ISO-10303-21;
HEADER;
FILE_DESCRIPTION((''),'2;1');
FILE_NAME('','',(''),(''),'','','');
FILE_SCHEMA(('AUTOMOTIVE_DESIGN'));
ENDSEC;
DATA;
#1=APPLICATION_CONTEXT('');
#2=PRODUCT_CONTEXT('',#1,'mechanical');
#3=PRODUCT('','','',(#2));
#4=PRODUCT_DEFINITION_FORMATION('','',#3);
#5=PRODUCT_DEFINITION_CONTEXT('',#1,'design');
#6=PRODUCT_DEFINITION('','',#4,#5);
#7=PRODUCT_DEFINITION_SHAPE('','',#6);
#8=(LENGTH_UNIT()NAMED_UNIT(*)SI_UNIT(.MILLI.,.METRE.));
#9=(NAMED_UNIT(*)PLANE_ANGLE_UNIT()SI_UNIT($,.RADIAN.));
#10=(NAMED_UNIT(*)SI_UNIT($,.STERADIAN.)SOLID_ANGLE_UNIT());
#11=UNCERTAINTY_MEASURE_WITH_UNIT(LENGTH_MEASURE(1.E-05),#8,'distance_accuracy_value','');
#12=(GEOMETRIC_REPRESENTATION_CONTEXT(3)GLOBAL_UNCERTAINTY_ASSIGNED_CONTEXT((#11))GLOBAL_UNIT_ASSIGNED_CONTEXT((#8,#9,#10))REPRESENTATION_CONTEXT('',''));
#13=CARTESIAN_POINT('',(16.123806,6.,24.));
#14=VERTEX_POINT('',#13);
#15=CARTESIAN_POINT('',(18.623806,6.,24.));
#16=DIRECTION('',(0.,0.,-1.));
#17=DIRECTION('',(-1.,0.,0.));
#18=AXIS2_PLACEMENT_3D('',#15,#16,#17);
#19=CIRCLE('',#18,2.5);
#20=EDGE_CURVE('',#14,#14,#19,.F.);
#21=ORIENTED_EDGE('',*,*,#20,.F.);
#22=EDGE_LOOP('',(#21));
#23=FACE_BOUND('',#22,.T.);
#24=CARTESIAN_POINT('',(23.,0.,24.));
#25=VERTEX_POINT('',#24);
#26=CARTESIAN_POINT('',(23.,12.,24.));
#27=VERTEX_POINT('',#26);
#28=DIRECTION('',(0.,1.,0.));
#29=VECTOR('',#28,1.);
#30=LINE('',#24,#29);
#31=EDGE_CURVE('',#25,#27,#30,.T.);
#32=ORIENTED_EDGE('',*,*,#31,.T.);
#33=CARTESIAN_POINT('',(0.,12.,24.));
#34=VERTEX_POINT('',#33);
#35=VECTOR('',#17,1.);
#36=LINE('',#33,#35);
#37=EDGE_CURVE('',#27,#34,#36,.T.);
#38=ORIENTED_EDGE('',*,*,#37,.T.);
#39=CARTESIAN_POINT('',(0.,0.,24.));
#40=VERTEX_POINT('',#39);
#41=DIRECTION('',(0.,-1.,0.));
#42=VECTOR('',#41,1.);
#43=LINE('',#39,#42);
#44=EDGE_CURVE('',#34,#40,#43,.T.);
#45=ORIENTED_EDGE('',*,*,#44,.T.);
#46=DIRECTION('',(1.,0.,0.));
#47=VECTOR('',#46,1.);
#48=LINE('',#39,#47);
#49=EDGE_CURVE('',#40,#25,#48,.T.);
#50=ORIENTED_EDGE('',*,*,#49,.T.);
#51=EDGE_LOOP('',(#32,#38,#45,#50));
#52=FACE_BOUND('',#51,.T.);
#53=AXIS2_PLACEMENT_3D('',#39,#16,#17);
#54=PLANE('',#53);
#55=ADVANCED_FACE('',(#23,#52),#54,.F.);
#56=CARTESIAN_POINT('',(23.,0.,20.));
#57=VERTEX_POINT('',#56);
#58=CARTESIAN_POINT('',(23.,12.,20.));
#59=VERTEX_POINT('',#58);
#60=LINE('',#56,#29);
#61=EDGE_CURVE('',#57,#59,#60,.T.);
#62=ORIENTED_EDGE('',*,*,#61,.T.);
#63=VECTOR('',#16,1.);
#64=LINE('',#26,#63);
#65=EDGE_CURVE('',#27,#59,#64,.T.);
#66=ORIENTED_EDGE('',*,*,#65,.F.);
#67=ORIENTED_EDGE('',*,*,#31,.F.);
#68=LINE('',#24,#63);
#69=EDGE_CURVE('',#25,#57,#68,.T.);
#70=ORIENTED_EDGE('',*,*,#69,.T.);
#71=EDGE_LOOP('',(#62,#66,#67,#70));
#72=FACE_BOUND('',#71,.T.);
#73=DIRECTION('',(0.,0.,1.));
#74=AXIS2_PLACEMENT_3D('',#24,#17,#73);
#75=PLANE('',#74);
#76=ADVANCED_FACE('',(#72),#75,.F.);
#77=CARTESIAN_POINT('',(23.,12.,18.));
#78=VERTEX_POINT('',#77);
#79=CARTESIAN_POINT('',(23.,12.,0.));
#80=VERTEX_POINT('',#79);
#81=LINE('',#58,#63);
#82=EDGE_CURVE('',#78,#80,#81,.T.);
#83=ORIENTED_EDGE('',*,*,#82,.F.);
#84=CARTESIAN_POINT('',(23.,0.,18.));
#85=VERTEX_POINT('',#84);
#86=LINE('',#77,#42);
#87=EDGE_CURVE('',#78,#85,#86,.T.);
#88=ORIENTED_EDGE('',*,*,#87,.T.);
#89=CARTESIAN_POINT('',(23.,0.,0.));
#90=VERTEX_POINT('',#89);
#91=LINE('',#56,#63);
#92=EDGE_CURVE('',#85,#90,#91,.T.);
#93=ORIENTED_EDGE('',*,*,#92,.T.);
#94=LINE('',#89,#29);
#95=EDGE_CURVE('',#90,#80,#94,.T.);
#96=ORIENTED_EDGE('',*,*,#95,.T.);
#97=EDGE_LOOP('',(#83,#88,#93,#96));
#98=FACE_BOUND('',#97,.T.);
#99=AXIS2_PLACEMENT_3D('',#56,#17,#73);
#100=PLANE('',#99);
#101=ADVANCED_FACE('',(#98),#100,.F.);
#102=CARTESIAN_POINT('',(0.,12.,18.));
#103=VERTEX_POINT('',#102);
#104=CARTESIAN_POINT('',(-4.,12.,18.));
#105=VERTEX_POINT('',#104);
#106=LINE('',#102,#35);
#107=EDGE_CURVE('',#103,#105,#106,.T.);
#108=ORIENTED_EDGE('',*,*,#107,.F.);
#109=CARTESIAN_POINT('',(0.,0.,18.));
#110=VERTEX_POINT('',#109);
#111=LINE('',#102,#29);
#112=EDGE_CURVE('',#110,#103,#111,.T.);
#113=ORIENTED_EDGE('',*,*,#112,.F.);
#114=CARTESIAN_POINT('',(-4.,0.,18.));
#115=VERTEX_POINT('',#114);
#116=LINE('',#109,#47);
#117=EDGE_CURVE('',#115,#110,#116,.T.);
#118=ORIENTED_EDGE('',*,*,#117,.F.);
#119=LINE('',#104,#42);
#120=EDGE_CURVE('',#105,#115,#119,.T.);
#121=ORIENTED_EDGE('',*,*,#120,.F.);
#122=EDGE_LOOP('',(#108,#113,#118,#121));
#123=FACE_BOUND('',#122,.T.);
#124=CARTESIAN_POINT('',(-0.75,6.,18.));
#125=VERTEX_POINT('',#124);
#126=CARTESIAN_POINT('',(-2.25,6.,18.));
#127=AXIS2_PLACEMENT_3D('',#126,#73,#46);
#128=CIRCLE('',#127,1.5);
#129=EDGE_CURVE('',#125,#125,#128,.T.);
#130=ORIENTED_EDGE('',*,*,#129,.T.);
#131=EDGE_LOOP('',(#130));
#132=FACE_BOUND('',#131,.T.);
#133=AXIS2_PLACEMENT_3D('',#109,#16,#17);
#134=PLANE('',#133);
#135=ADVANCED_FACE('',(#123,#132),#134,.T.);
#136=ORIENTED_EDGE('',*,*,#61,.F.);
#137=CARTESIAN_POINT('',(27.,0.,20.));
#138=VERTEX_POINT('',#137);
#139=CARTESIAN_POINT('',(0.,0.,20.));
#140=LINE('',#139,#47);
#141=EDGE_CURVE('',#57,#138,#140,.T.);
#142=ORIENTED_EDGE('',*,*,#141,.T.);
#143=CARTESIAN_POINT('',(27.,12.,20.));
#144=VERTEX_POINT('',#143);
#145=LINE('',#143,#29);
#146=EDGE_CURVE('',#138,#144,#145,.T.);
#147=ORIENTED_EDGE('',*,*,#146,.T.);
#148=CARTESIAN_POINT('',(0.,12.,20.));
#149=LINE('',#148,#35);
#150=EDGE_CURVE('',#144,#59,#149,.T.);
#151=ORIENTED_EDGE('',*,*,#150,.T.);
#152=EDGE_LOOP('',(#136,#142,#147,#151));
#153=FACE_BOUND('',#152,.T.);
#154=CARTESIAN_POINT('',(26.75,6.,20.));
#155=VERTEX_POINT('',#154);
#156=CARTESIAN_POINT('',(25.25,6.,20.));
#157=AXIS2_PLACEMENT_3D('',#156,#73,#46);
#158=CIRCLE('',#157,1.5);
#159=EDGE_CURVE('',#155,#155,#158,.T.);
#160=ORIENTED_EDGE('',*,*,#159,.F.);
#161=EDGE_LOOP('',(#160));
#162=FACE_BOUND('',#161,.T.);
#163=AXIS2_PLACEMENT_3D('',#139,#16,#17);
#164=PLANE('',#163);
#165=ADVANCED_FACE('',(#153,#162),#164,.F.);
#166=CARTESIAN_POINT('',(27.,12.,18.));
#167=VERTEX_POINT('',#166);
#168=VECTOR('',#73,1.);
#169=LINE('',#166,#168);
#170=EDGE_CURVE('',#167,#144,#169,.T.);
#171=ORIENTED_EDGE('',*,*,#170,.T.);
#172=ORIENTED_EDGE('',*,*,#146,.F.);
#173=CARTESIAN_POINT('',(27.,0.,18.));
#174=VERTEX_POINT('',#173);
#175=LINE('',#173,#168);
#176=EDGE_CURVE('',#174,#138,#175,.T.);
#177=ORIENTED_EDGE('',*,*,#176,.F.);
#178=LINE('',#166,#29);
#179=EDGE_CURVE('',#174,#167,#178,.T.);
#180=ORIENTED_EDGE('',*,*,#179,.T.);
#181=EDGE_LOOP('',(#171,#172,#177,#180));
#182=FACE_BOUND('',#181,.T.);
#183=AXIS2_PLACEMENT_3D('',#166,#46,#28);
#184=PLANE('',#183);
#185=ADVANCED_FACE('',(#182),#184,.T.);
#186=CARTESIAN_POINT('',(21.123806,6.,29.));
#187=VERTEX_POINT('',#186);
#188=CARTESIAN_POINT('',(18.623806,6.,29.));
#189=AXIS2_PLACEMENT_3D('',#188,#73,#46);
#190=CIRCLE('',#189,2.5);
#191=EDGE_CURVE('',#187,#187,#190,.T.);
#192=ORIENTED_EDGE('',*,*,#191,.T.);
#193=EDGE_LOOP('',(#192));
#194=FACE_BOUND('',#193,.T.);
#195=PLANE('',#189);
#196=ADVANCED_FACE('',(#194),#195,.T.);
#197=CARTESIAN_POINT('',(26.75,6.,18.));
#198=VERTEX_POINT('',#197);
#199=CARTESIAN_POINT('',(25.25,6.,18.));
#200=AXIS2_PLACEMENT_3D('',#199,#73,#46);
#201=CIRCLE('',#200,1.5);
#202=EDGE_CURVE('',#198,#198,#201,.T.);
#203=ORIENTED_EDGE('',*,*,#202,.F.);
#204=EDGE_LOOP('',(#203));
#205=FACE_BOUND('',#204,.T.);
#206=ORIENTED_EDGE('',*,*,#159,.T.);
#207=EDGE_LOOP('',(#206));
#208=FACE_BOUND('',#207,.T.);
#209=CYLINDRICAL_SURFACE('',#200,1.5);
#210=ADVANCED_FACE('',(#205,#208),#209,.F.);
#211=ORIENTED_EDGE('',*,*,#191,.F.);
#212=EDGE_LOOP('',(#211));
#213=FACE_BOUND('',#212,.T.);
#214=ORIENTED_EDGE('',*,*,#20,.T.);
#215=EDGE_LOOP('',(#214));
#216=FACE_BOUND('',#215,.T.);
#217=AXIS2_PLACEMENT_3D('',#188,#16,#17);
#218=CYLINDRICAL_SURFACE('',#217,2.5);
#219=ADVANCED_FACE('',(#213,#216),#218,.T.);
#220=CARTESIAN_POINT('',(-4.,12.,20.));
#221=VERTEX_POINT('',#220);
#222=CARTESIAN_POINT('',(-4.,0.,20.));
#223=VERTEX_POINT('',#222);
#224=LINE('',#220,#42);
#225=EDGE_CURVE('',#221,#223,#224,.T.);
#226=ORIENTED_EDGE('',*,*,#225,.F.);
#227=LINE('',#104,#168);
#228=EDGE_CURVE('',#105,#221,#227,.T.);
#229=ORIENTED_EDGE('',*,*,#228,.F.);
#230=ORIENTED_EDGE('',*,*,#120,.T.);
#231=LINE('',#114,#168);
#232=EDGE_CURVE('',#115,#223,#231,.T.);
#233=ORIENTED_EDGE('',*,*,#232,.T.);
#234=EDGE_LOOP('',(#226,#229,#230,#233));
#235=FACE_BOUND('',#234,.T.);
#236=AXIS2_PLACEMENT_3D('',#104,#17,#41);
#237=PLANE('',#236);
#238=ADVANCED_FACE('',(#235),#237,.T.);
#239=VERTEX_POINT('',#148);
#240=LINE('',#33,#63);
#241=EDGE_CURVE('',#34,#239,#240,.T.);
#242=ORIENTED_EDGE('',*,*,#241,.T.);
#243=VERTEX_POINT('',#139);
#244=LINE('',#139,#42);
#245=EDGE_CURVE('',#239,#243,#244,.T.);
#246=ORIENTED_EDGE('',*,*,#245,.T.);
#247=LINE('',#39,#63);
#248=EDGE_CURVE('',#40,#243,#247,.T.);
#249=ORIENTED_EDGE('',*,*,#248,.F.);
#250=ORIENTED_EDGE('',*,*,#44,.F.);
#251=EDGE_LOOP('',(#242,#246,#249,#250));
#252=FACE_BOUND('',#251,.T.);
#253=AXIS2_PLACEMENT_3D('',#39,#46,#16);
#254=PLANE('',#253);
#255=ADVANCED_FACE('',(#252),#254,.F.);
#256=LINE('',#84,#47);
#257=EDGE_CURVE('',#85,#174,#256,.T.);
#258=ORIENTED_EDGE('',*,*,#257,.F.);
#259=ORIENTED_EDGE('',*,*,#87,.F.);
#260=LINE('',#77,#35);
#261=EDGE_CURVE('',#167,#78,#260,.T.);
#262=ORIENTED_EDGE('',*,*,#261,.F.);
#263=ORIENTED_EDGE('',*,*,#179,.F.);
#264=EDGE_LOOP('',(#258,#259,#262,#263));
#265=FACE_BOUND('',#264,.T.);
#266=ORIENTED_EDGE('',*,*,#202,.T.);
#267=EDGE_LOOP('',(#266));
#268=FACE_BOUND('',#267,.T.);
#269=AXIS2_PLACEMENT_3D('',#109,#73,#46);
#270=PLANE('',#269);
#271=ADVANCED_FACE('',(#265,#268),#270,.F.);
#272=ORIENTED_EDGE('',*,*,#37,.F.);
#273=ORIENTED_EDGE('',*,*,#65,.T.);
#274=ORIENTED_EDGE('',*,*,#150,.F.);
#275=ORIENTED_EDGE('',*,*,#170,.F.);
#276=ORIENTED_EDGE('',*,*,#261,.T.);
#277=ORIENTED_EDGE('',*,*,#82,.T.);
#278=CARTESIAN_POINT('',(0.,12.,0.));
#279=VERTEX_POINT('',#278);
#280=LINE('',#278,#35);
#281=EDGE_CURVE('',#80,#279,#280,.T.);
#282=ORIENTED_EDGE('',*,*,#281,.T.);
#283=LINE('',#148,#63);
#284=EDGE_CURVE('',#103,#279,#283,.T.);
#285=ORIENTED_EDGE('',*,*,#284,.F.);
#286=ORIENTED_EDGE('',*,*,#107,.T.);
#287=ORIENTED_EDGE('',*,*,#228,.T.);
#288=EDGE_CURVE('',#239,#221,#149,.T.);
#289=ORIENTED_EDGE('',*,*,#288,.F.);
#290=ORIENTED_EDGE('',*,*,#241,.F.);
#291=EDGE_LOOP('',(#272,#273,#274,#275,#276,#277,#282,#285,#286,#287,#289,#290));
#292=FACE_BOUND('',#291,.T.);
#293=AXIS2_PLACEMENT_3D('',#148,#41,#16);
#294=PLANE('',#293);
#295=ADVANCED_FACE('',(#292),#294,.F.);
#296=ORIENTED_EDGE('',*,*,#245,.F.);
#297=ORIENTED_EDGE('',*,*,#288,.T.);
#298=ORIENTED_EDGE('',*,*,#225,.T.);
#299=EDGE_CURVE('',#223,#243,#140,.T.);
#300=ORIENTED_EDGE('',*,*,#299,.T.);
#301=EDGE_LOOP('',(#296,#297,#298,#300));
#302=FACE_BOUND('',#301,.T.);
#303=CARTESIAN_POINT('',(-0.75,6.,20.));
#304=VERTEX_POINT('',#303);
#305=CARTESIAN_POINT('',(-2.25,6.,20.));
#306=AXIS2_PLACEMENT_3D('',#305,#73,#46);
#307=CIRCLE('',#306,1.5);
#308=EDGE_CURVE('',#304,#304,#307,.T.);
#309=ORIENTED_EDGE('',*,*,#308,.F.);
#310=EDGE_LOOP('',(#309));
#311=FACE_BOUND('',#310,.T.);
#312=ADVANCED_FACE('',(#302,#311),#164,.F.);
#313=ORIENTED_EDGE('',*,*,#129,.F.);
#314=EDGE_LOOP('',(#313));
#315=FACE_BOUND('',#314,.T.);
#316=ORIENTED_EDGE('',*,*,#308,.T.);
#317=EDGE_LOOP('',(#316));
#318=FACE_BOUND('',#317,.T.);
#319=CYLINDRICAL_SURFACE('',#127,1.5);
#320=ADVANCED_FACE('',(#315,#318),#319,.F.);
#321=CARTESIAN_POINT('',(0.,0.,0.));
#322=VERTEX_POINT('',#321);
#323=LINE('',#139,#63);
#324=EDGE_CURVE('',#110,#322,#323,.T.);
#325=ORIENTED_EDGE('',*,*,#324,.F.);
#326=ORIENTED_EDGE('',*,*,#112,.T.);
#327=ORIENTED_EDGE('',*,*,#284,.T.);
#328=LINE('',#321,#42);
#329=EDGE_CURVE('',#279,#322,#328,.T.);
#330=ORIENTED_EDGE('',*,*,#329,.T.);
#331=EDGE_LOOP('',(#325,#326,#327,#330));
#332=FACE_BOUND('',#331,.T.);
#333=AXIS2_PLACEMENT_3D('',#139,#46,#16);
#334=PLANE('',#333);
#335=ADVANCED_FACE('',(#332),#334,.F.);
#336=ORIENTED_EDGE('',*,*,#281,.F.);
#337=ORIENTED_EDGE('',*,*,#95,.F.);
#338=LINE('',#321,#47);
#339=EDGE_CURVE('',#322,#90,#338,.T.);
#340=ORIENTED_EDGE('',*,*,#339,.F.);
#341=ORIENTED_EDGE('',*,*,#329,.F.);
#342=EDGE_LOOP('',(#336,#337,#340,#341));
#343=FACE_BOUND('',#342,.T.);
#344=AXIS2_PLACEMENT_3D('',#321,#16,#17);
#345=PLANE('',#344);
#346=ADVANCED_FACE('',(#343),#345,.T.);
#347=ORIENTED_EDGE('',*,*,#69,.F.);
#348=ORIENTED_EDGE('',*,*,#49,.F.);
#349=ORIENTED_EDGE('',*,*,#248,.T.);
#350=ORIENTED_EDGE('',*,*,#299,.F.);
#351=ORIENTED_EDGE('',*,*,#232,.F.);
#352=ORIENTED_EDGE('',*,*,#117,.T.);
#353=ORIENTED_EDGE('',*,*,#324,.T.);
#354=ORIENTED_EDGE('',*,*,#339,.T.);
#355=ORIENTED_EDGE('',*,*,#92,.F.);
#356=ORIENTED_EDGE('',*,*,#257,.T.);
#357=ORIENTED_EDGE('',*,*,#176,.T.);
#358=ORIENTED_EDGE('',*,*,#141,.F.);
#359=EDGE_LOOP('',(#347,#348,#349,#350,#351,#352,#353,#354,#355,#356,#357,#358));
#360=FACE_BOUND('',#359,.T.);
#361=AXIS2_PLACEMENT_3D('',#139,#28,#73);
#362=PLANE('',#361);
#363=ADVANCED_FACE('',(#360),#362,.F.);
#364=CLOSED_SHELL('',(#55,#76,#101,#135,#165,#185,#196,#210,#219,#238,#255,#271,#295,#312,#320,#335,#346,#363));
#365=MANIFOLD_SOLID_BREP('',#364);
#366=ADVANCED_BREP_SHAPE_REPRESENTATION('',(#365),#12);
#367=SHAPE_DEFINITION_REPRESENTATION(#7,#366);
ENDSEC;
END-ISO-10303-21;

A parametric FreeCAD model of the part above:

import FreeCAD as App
import Part
import Sketcher
from FreeCAD import Vector

doc = App.newDocument("Part")
body = doc.addObject("PartDesign::Body", "Body")

sketch1 = body.newObject("Sketcher::SketchObject", "Sketch")
sketch1.AttachmentSupport = (doc.getObject("XY_Plane"), [""])
sketch1.MapMode = "FlatFace"
sketch1.addGeometry([
    Part.LineSegment(Vector(0, 12, 0), Vector(0, 0, 0)),
    Part.LineSegment(Vector(0, 0, 0), Vector(23, 0, 0)),
    Part.LineSegment(Vector(23, 0, 0), Vector(23, 12, 0)),
    Part.LineSegment(Vector(23, 12, 0), Vector(0, 12, 0)),
], False)
sketch1.addConstraint([
    Sketcher.Constraint("Coincident", 0, 2, 1, 1),
    Sketcher.Constraint("Coincident", 1, 2, 2, 1),
    Sketcher.Constraint("Coincident", 2, 2, 3, 1),
    Sketcher.Constraint("Coincident", 3, 2, 0, 1),
    Sketcher.Constraint("Vertical", 0),
    Sketcher.Constraint("Horizontal", 1),
    Sketcher.Constraint("Vertical", 2),
    Sketcher.Constraint("Horizontal", 3),
    Sketcher.Constraint("Coincident", 0, 2, -1, 1),
    Sketcher.Constraint("DistanceX", 1, 1, 1, 2, 23.0),
    Sketcher.Constraint("DistanceY", 0, 2, 0, 1, 12.0),
])
pad1 = body.newObject("PartDesign::Pad", "Pad")
pad1.Profile = sketch1
pad1.Length = 20

sketch2 = body.newObject("Sketcher::SketchObject", "Sketch001")
sketch2.AttachmentSupport = (doc.getObject("XY_Plane"), [""])
sketch2.MapMode = "FlatFace"
sketch2.AttachmentOffset = App.Placement(Vector(0, 0, 20), App.Rotation())
sketch2.addGeometry([
    Part.LineSegment(Vector(-4, 12, 0), Vector(-4, 0, 0)),
    Part.LineSegment(Vector(-4, 0, 0), Vector(0, 0, 0)),
    Part.LineSegment(Vector(0, 0, 0), Vector(0, 12, 0)),
    Part.LineSegment(Vector(0, 12, 0), Vector(-4, 12, 0)),
    Part.Circle(Vector(-2.2, 6, 0), Vector(0, 0, 1), 1.5),
    Part.LineSegment(Vector(23, 12, 0), Vector(23, 0, 0)),
    Part.LineSegment(Vector(23, 0, 0), Vector(27, 0, 0)),
    Part.LineSegment(Vector(27, 0, 0), Vector(27, 12, 0)),
    Part.LineSegment(Vector(27, 12, 0), Vector(23, 12, 0)),
    Part.Circle(Vector(25.2, 6, 0), Vector(0, 0, 1), 1.5),
], False)
sketch2.addConstraint([
    Sketcher.Constraint("Coincident", 0, 2, 1, 1),
    Sketcher.Constraint("Coincident", 1, 2, 2, 1),
    Sketcher.Constraint("Coincident", 2, 2, 3, 1),
    Sketcher.Constraint("Coincident", 3, 2, 0, 1),
    Sketcher.Constraint("Coincident", 5, 2, 6, 1),
    Sketcher.Constraint("Coincident", 6, 2, 7, 1),
    Sketcher.Constraint("Coincident", 7, 2, 8, 1),
    Sketcher.Constraint("Coincident", 8, 2, 5, 1),
    Sketcher.Constraint("Vertical", 0),
    Sketcher.Constraint("Horizontal", 1),
    Sketcher.Constraint("Vertical", 2),
    Sketcher.Constraint("Horizontal", 3),
    Sketcher.Constraint("Vertical", 5),
    Sketcher.Constraint("Horizontal", 6),
    Sketcher.Constraint("Vertical", 7),
    Sketcher.Constraint("Horizontal", 8),
    Sketcher.Constraint("Coincident", 1, 2, -1, 1),
    Sketcher.Constraint("Equal", 4, 9),
    Sketcher.Constraint("PointOnObject", 5, 2, -1),
    Sketcher.Constraint("Horizontal", 4, 3, 9, 3),
    Sketcher.Constraint("Horizontal", 3, 2, 7, 2),
    Sketcher.Constraint("Equal", 3, 6),
    Sketcher.Constraint("Diameter", 4, 3.0),
    Sketcher.Constraint("DistanceX", 1, 1, 1, 2, 4.0),
    Sketcher.Constraint("DistanceY", 0, 2, 0, 1, 12.0),
    Sketcher.Constraint("DistanceY", -1, 1, 4, 3, 6.0),
    Sketcher.Constraint("DistanceX", -1, 1, 5, 2, 23.0),
    Sketcher.Constraint("DistanceX", 4, 3, 9, 3, 27.5),
    Sketcher.Constraint("DistanceX", 4, 3, -1, 1, 2.25),
])
pad2 = body.newObject("PartDesign::Pad", "Pad001")
pad2.Profile = sketch2
pad2.Length = 2
pad2.Reversed = True

sketch3 = body.newObject("Sketcher::SketchObject", "Sketch002")
sketch3.AttachmentSupport = (doc.getObject("XY_Plane"), [""])
sketch3.MapMode = "FlatFace"
sketch3.AttachmentOffset = App.Placement(Vector(0, 0, 20), App.Rotation())
sketch3.addGeometry([
    Part.LineSegment(Vector(0, 12, 0), Vector(0, 0, 0)),
    Part.LineSegment(Vector(0, 0, 0), Vector(23, 0, 0)),
    Part.LineSegment(Vector(23, 0, 0), Vector(23, 12, 0)),
    Part.LineSegment(Vector(23, 12, 0), Vector(0, 12, 0)),
], False)
sketch3.addConstraint([
    Sketcher.Constraint("Coincident", 0, 2, 1, 1),
    Sketcher.Constraint("Coincident", 1, 2, 2, 1),
    Sketcher.Constraint("Coincident", 2, 2, 3, 1),
    Sketcher.Constraint("Coincident", 3, 2, 0, 1),
    Sketcher.Constraint("Vertical", 0),
    Sketcher.Constraint("Horizontal", 1),
    Sketcher.Constraint("Vertical", 2),
    Sketcher.Constraint("Horizontal", 3),
    Sketcher.Constraint("Coincident", 0, 2, -1, 1),
    Sketcher.Constraint("DistanceX", 1, 1, 1, 2, 23.0),
    Sketcher.Constraint("DistanceY", 0, 2, 0, 1, 12.0),
])
pad3 = body.newObject("PartDesign::Pad", "Pad002")
pad3.Profile = sketch3
pad3.Length = 4

sketch4 = body.newObject("Sketcher::SketchObject", "Sketch003")
sketch4.AttachmentSupport = (doc.getObject("XY_Plane"), [""])
sketch4.MapMode = "FlatFace"
sketch4.AttachmentOffset = App.Placement(Vector(0, 0, 24), App.Rotation())
sketch4.addGeometry(Part.Circle(Vector(18.6, 6, 0), Vector(0, 0, 1), 2.5), False)
sketch4.addConstraint([
    Sketcher.Constraint("Diameter", 0, 5.0),
    Sketcher.Constraint("DistanceY", -1, 1, 0, 3, 6.0),
    Sketcher.Constraint("DistanceX", -1, 1, 0, 3, 18.623806),
])
pad4 = body.newObject("PartDesign::Pad", "Pad003")
pad4.Profile = sketch4
pad4.Length = 5

doc.recompute()
